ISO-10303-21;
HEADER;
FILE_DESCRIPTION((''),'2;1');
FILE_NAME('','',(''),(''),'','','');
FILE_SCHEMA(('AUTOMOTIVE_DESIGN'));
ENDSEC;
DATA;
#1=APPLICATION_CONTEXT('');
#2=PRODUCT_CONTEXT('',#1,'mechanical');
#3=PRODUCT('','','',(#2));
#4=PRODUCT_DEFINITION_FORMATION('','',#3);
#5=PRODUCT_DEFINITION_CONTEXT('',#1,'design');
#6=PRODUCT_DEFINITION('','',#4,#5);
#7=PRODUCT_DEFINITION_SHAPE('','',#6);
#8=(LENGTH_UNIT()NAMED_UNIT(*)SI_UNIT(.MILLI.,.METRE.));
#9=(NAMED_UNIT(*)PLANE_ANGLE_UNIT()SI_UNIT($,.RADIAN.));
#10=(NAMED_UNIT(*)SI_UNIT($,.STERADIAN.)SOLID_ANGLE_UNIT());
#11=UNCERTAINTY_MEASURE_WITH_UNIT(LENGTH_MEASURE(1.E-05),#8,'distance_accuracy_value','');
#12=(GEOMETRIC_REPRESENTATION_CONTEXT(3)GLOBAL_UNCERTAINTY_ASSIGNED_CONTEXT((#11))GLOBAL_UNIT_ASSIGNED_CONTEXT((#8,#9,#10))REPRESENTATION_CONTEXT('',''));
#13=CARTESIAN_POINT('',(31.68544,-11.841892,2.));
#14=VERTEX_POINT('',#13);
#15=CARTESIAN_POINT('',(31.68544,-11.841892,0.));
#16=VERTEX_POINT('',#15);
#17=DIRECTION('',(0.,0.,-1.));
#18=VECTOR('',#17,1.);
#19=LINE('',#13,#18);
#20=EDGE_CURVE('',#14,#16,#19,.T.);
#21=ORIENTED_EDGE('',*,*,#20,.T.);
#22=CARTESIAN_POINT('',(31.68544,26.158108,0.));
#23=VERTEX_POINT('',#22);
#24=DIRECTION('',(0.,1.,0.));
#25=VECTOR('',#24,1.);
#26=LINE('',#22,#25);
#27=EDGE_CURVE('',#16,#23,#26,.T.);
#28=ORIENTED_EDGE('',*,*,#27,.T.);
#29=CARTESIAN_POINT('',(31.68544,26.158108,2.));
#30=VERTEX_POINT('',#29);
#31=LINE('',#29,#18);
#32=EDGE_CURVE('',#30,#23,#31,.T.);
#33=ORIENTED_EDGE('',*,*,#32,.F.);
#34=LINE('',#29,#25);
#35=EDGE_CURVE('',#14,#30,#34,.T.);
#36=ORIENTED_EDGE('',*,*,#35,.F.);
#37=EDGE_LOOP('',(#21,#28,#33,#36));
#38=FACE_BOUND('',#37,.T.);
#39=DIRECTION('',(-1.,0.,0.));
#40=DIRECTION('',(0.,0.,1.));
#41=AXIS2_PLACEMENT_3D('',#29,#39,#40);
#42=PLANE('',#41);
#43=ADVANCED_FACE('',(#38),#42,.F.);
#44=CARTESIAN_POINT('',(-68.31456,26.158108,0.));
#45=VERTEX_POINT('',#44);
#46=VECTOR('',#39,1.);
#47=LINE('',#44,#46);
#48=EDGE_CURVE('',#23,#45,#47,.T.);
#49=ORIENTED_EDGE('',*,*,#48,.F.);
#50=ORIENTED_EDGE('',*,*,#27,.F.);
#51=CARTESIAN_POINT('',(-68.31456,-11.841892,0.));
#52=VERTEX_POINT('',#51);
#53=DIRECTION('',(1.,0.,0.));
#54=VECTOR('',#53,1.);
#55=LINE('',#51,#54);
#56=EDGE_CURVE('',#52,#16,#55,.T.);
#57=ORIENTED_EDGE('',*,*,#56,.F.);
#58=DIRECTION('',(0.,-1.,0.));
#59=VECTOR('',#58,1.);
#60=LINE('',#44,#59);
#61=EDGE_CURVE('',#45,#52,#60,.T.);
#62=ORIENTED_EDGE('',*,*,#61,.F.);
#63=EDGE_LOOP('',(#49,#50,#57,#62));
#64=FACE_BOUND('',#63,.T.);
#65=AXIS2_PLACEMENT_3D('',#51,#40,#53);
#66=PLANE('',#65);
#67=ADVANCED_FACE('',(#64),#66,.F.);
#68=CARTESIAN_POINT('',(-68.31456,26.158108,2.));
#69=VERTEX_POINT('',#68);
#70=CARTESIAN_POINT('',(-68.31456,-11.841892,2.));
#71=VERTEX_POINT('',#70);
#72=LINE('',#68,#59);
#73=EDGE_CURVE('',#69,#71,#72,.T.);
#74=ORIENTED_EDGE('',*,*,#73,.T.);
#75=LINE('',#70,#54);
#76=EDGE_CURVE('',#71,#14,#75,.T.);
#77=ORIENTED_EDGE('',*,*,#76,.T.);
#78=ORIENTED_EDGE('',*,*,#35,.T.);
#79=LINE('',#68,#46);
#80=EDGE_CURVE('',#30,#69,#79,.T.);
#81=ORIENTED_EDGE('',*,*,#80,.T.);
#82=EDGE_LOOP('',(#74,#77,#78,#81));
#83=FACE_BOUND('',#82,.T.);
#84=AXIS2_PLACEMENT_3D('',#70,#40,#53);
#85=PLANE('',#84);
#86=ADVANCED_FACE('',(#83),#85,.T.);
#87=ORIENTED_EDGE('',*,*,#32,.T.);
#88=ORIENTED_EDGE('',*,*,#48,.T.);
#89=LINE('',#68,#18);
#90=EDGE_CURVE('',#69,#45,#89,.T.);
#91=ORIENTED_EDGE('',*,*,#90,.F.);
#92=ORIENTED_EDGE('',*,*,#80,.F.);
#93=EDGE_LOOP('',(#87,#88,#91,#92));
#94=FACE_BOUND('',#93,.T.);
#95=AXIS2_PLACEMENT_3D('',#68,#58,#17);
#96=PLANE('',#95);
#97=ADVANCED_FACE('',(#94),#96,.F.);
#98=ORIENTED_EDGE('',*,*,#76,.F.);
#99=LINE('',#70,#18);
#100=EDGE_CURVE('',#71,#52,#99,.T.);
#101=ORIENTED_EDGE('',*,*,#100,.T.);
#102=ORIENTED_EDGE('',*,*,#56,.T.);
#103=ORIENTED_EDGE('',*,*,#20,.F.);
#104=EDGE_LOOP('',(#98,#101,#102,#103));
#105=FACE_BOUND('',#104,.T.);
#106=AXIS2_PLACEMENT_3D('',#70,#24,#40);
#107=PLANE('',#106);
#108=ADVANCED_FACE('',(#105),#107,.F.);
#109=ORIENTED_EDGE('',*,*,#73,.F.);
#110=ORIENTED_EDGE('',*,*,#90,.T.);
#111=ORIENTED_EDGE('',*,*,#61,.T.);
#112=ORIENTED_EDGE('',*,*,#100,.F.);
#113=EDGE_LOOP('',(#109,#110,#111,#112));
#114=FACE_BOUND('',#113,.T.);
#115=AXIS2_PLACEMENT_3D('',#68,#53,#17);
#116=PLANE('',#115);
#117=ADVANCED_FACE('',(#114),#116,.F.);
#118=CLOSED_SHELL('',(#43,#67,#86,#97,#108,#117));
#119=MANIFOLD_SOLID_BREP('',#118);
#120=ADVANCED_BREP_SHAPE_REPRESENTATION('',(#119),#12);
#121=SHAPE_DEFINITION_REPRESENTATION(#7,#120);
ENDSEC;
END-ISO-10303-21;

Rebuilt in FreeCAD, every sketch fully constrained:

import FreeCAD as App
import Part
import Sketcher

V = App.Vector
Q = App.Units.Quantity

doc = App.newDocument("Part")
params = doc.addObject("Spreadsheet::Sheet", "Params")
for row, (alias, value) in enumerate([
    ("sketch1_width", "100 mm"),
    ("sketch1_height", "38 mm"),
    ("pad1_length", "2 mm"),
], start=1):
    params.set(f"A{row}", alias)
    params.set(f"B{row}", "=" + value)
    params.setAlias(f"B{row}", alias)

body = doc.addObject("PartDesign::Body", "Body")

# Sketch on XY plane
sketch1 = doc.addObject("Sketcher::SketchObject", "Sketch")
body.addObject(sketch1)
sketch1.AttachmentSupport = (doc.XY_Plane, [""])
sketch1.MapMode = "FlatFace"
sketch1.addGeometry(Part.LineSegment(V(-68, 26, 0), V(-68, -12, 0)), False)
sketch1.addGeometry(Part.LineSegment(V(-68, -12, 0), V(32, -12, 0)), False)
sketch1.addGeometry(Part.LineSegment(V(32, -12, 0), V(32, 26, 0)), False)
sketch1.addGeometry(Part.LineSegment(V(32, 26, 0), V(-68, 26, 0)), False)
sketch1.addConstraint(Sketcher.Constraint("Coincident", 0, 2, 1, 1))
sketch1.addConstraint(Sketcher.Constraint("Coincident", 1, 2, 2, 1))
sketch1.addConstraint(Sketcher.Constraint("Coincident", 2, 2, 3, 1))
sketch1.addConstraint(Sketcher.Constraint("Coincident", 3, 2, 0, 1))
sketch1.addConstraint(Sketcher.Constraint("Vertical", 0))
sketch1.addConstraint(Sketcher.Constraint("Horizontal", 1))
sketch1.addConstraint(Sketcher.Constraint("Vertical", 2))
sketch1.addConstraint(Sketcher.Constraint("Horizontal", 3))
sketch1.addConstraint(Sketcher.Constraint("DistanceX", 1, 1, 1, 2, Q("100 mm")))
sketch1.addConstraint(Sketcher.Constraint("DistanceY", 0, 2, 0, 1, Q("38 mm")))
sketch1.addConstraint(Sketcher.Constraint("DistanceX", 0, 2, -1, 1, Q("68.31456 mm")))
sketch1.addConstraint(Sketcher.Constraint("DistanceY", 0, 2, -1, 1, Q("11.841892 mm")))
sketch1.setExpression("Constraints[8]", "Params.sketch1_width")
sketch1.setExpression("Constraints[9]", "Params.sketch1_height")
pad1 = doc.addObject("PartDesign::Pad", "Pad")
body.addObject(pad1)
pad1.Profile = sketch1
pad1.setExpression("Length", "Params.pad1_length")

doc.recompute()
